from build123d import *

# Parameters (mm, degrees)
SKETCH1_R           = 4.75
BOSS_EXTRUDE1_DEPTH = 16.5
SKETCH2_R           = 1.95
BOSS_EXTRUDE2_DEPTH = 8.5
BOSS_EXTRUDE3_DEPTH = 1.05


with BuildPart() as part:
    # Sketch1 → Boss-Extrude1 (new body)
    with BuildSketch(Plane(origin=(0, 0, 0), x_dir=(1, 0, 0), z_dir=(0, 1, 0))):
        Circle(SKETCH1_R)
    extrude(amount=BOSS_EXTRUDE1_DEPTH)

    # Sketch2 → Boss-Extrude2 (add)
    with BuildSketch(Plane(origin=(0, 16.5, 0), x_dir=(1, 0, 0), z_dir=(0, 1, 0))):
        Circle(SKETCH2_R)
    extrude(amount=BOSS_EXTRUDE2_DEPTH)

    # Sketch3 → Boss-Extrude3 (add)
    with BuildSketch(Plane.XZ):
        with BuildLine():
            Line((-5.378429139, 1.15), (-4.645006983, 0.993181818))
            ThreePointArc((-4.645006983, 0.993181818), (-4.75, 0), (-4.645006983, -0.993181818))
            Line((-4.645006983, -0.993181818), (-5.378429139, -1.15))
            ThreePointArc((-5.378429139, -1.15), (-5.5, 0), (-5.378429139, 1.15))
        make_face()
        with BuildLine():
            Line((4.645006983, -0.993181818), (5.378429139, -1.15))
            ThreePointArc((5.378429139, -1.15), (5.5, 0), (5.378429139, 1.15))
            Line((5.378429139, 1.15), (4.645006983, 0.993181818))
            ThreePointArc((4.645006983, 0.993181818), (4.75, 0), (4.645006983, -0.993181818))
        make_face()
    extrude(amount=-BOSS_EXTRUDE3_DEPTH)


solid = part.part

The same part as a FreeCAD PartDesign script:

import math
import FreeCAD as App
import Part
import Sketcher

V = App.Vector

doc = App.newDocument("Part")
params = doc.addObject("Spreadsheet::Sheet", "Params")
for row, (alias, value) in enumerate([
    ("sketch1_diameter", "9.5 mm"),
    ("pad1_length", "16.5 mm"),
    ("sketch2_diameter", "3.9 mm"),
    ("pad2_length", "8.5 mm"),
    ("sketch3_radius", "5.5 mm"),
    ("sketch3_radius2", "4.75 mm"),
    ("pad3_length", "1.05 mm"),
], start=1):
    params.set(f"A{row}", alias)
    params.set(f"B{row}", "=" + value)
    params.setAlias(f"B{row}", alias)

body = doc.addObject("PartDesign::Body", "Body")

# Sketch on XZ plane
sketch1 = body.newObject("Sketcher::SketchObject", "Sketch")
sketch1.AttachmentSupport = (doc.getObject("XZ_Plane"), [""])
sketch1.MapMode = "FlatFace"
sketch1.addGeometry(Part.Circle(V(0, 0, 0), V(0, 0, 1), 4.8), False)
sketch1.addConstraint([
    Sketcher.Constraint("Coincident", 0, 3, -1, 1),
    Sketcher.Constraint("Diameter", 0, 9.5),
])
sketch1.setExpression("Constraints[1]", "Params.sketch1_diameter")
pad1 = body.newObject("PartDesign::Pad", "Pad")
pad1.Profile = sketch1
pad1.setExpression("Length", "Params.pad1_length")
pad1.Reversed = True

# Sketch on XZ plane
sketch2 = body.newObject("Sketcher::SketchObject", "Sketch001")
sketch2.AttachmentSupport = (doc.getObject("XZ_Plane"), [""])
sketch2.MapMode = "FlatFace"
sketch2.AttachmentOffset = App.Placement(V(0, 0, -16.5), App.Rotation())
sketch2.addGeometry(Part.Circle(V(0, 0, 0), V(0, 0, 1), 1.9), False)
sketch2.addConstraint([
    Sketcher.Constraint("Coincident", 0, 3, -1, 1),
    Sketcher.Constraint("Diameter", 0, 3.9),
])
sketch2.setExpression("Constraints[1]", "Params.sketch2_diameter")
pad2 = body.newObject("PartDesign::Pad", "Pad001")
pad2.Profile = sketch2
pad2.setExpression("Length", "Params.pad2_length")
pad2.Reversed = True

# Sketch on XZ plane
sketch3 = body.newObject("Sketcher::SketchObject", "Sketch002")
sketch3.AttachmentSupport = (doc.getObject("XZ_Plane"), [""])
sketch3.MapMode = "FlatFace"
sketch3.addGeometry([
    Part.LineSegment(V(-4.6, 1, 0), V(-5.4, 1.1, 0)),  # 0
    Part.ArcOfCircle(Part.Circle(V(0, 0, 0), V(0, 0, 1), 5.5), math.radians(168), math.radians(192)),  # 1
    Part.LineSegment(V(-5.4, -1.1, 0), V(-4.6, -1, 0)),  # 2
    Part.ArcOfCircle(Part.Circle(V(0, 0, 0), V(0, 0, 1), 4.7), math.radians(168), math.radians(192)),  # 3
    Part.LineSegment(V(4.6, -1, 0), V(5.4, -1.1, 0)),  # 4
    Part.ArcOfCircle(Part.Circle(V(0, 0, 0), V(0, 0, 1), 5.5), math.radians(-12), math.radians(12)),  # 5
    Part.LineSegment(V(5.4, 1.1, 0), V(4.6, 1, 0)),  # 6
    Part.ArcOfCircle(Part.Circle(V(0, 0, 0), V(0, 0, 1), 4.7), math.radians(-12), math.radians(12)),  # 7
], False)
sketch3.addConstraint([
    Sketcher.Constraint("Coincident", 0, 2, 1, 1),
    Sketcher.Constraint("Coincident", 1, 2, 2, 1),
    Sketcher.Constraint("Coincident", 2, 2, 3, 2),
    Sketcher.Constraint("Coincident", 3, 1, 0, 1),
    Sketcher.Constraint("Coincident", 4, 2, 5, 1),
    Sketcher.Constraint("Coincident", 5, 2, 6, 1),
    Sketcher.Constraint("Coincident", 6, 2, 7, 2),
    Sketcher.Constraint("Coincident", 7, 1, 4, 1),
    Sketcher.Constraint("Coincident", 1, 3, -1, 1),
    Sketcher.Constraint("Coincident", 3, 3, -1, 1),
    Sketcher.Constraint("Coincident", 5, 3, -1, 1),
    Sketcher.Constraint("Coincident", 7, 3, -1, 1),
    Sketcher.Constraint("Equal", 1, 5),
    Sketcher.Constraint("Equal", 3, 7),
    Sketcher.Constraint("Parallel", 0, 4),
    Sketcher.Constraint("Parallel", 2, 6),
    Sketcher.Constraint("Horizontal", 1, 2, 4, 2),
    Sketcher.Constraint("Horizontal", 0, 2, 5, 2),
    Sketcher.Constraint("Horizontal", 3, 1, 6, 2),
    Sketcher.Constraint("Vertical", 0, 2, 1, 2),
    Sketcher.Constraint("Radius", 1, 5.5),
    Sketcher.Constraint("Radius", 3, 4.75),
    Sketcher.Constraint("DistanceY", 1, 2, 0, 2, 2.3),
    Sketcher.Constraint("DistanceY", 2, 2, -1, 1, 0.993182),
])
sketch3.setExpression("Constraints[20]", "Params.sketch3_radius")
sketch3.setExpression("Constraints[21]", "Params.sketch3_radius2")
pad3 = body.newObject("PartDesign::Pad", "Pad002")
pad3.Profile = sketch3
pad3.setExpression("Length", "Params.pad3_length")
pad3.Reversed = True

doc.recompute()
